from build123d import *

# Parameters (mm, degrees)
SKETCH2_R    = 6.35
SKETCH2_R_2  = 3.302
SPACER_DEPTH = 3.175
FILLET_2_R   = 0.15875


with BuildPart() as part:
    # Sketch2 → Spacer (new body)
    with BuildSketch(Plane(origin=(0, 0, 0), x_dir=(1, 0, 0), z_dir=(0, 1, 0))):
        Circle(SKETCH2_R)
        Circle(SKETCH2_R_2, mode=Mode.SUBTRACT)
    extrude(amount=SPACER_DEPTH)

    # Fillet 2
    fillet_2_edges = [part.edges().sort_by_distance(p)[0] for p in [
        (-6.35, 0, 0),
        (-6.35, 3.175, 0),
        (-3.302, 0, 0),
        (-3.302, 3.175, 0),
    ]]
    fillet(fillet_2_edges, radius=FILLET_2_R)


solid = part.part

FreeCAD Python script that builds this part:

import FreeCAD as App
import Part
import Sketcher
Q = App.Units.Quantity


def edges_at(feature, points):
    """Names of the edges that pass closest to the given points."""
    edges = feature.Shape.Edges
    near = lambda p: min(range(len(edges)), key=lambda i: edges[i].distToShape(Part.Vertex(*p))[0])
    return sorted({f"Edge{near(p) + 1}" for p in points})

doc = App.newDocument("Part")
body = doc.addObject("PartDesign::Body", "Body")

sketch1 = body.newObject("Sketcher::SketchObject", "Sketch")
sketch1.AttachmentSupport = (doc.getObject("XZ_Plane"), [""])
sketch1.MapMode = "FlatFace"
sketch1.addGeometry(Part.Circle(App.Vector(0, 0, 0), App.Vector(0, 0, 1), 6.35), False)
sketch1.addGeometry(Part.Circle(App.Vector(0, 0, 0), App.Vector(0, 0, 1), 3.302), False)
sketch1.addConstraint(Sketcher.Constraint("Coincident", 0, 3, -1, 1))
sketch1.addConstraint(Sketcher.Constraint("Coincident", 1, 3, -1, 1))
sketch1.addConstraint(Sketcher.Constraint("Diameter", 0, Q("0.5 in")))
sketch1.addConstraint(Sketcher.Constraint("Diameter", 1, Q("0.26 in")))
pad1 = body.newObject("PartDesign::Pad", "Pad")
pad1.Profile = sketch1
pad1.Length = Q("0.125 in")
pad1.Reversed = True
doc.recompute()

fillet = body.newObject("PartDesign::Fillet", "Fillet")
fillet.Base = (pad1, edges_at(pad1, [
    (-6.35, 0, 0),
    (-6.35, 3.175, 0),
    (-3.302, 0, 0),
    (-3.302, 3.175, 0),
]))
fillet.Radius = 0.15875

doc.recompute()
